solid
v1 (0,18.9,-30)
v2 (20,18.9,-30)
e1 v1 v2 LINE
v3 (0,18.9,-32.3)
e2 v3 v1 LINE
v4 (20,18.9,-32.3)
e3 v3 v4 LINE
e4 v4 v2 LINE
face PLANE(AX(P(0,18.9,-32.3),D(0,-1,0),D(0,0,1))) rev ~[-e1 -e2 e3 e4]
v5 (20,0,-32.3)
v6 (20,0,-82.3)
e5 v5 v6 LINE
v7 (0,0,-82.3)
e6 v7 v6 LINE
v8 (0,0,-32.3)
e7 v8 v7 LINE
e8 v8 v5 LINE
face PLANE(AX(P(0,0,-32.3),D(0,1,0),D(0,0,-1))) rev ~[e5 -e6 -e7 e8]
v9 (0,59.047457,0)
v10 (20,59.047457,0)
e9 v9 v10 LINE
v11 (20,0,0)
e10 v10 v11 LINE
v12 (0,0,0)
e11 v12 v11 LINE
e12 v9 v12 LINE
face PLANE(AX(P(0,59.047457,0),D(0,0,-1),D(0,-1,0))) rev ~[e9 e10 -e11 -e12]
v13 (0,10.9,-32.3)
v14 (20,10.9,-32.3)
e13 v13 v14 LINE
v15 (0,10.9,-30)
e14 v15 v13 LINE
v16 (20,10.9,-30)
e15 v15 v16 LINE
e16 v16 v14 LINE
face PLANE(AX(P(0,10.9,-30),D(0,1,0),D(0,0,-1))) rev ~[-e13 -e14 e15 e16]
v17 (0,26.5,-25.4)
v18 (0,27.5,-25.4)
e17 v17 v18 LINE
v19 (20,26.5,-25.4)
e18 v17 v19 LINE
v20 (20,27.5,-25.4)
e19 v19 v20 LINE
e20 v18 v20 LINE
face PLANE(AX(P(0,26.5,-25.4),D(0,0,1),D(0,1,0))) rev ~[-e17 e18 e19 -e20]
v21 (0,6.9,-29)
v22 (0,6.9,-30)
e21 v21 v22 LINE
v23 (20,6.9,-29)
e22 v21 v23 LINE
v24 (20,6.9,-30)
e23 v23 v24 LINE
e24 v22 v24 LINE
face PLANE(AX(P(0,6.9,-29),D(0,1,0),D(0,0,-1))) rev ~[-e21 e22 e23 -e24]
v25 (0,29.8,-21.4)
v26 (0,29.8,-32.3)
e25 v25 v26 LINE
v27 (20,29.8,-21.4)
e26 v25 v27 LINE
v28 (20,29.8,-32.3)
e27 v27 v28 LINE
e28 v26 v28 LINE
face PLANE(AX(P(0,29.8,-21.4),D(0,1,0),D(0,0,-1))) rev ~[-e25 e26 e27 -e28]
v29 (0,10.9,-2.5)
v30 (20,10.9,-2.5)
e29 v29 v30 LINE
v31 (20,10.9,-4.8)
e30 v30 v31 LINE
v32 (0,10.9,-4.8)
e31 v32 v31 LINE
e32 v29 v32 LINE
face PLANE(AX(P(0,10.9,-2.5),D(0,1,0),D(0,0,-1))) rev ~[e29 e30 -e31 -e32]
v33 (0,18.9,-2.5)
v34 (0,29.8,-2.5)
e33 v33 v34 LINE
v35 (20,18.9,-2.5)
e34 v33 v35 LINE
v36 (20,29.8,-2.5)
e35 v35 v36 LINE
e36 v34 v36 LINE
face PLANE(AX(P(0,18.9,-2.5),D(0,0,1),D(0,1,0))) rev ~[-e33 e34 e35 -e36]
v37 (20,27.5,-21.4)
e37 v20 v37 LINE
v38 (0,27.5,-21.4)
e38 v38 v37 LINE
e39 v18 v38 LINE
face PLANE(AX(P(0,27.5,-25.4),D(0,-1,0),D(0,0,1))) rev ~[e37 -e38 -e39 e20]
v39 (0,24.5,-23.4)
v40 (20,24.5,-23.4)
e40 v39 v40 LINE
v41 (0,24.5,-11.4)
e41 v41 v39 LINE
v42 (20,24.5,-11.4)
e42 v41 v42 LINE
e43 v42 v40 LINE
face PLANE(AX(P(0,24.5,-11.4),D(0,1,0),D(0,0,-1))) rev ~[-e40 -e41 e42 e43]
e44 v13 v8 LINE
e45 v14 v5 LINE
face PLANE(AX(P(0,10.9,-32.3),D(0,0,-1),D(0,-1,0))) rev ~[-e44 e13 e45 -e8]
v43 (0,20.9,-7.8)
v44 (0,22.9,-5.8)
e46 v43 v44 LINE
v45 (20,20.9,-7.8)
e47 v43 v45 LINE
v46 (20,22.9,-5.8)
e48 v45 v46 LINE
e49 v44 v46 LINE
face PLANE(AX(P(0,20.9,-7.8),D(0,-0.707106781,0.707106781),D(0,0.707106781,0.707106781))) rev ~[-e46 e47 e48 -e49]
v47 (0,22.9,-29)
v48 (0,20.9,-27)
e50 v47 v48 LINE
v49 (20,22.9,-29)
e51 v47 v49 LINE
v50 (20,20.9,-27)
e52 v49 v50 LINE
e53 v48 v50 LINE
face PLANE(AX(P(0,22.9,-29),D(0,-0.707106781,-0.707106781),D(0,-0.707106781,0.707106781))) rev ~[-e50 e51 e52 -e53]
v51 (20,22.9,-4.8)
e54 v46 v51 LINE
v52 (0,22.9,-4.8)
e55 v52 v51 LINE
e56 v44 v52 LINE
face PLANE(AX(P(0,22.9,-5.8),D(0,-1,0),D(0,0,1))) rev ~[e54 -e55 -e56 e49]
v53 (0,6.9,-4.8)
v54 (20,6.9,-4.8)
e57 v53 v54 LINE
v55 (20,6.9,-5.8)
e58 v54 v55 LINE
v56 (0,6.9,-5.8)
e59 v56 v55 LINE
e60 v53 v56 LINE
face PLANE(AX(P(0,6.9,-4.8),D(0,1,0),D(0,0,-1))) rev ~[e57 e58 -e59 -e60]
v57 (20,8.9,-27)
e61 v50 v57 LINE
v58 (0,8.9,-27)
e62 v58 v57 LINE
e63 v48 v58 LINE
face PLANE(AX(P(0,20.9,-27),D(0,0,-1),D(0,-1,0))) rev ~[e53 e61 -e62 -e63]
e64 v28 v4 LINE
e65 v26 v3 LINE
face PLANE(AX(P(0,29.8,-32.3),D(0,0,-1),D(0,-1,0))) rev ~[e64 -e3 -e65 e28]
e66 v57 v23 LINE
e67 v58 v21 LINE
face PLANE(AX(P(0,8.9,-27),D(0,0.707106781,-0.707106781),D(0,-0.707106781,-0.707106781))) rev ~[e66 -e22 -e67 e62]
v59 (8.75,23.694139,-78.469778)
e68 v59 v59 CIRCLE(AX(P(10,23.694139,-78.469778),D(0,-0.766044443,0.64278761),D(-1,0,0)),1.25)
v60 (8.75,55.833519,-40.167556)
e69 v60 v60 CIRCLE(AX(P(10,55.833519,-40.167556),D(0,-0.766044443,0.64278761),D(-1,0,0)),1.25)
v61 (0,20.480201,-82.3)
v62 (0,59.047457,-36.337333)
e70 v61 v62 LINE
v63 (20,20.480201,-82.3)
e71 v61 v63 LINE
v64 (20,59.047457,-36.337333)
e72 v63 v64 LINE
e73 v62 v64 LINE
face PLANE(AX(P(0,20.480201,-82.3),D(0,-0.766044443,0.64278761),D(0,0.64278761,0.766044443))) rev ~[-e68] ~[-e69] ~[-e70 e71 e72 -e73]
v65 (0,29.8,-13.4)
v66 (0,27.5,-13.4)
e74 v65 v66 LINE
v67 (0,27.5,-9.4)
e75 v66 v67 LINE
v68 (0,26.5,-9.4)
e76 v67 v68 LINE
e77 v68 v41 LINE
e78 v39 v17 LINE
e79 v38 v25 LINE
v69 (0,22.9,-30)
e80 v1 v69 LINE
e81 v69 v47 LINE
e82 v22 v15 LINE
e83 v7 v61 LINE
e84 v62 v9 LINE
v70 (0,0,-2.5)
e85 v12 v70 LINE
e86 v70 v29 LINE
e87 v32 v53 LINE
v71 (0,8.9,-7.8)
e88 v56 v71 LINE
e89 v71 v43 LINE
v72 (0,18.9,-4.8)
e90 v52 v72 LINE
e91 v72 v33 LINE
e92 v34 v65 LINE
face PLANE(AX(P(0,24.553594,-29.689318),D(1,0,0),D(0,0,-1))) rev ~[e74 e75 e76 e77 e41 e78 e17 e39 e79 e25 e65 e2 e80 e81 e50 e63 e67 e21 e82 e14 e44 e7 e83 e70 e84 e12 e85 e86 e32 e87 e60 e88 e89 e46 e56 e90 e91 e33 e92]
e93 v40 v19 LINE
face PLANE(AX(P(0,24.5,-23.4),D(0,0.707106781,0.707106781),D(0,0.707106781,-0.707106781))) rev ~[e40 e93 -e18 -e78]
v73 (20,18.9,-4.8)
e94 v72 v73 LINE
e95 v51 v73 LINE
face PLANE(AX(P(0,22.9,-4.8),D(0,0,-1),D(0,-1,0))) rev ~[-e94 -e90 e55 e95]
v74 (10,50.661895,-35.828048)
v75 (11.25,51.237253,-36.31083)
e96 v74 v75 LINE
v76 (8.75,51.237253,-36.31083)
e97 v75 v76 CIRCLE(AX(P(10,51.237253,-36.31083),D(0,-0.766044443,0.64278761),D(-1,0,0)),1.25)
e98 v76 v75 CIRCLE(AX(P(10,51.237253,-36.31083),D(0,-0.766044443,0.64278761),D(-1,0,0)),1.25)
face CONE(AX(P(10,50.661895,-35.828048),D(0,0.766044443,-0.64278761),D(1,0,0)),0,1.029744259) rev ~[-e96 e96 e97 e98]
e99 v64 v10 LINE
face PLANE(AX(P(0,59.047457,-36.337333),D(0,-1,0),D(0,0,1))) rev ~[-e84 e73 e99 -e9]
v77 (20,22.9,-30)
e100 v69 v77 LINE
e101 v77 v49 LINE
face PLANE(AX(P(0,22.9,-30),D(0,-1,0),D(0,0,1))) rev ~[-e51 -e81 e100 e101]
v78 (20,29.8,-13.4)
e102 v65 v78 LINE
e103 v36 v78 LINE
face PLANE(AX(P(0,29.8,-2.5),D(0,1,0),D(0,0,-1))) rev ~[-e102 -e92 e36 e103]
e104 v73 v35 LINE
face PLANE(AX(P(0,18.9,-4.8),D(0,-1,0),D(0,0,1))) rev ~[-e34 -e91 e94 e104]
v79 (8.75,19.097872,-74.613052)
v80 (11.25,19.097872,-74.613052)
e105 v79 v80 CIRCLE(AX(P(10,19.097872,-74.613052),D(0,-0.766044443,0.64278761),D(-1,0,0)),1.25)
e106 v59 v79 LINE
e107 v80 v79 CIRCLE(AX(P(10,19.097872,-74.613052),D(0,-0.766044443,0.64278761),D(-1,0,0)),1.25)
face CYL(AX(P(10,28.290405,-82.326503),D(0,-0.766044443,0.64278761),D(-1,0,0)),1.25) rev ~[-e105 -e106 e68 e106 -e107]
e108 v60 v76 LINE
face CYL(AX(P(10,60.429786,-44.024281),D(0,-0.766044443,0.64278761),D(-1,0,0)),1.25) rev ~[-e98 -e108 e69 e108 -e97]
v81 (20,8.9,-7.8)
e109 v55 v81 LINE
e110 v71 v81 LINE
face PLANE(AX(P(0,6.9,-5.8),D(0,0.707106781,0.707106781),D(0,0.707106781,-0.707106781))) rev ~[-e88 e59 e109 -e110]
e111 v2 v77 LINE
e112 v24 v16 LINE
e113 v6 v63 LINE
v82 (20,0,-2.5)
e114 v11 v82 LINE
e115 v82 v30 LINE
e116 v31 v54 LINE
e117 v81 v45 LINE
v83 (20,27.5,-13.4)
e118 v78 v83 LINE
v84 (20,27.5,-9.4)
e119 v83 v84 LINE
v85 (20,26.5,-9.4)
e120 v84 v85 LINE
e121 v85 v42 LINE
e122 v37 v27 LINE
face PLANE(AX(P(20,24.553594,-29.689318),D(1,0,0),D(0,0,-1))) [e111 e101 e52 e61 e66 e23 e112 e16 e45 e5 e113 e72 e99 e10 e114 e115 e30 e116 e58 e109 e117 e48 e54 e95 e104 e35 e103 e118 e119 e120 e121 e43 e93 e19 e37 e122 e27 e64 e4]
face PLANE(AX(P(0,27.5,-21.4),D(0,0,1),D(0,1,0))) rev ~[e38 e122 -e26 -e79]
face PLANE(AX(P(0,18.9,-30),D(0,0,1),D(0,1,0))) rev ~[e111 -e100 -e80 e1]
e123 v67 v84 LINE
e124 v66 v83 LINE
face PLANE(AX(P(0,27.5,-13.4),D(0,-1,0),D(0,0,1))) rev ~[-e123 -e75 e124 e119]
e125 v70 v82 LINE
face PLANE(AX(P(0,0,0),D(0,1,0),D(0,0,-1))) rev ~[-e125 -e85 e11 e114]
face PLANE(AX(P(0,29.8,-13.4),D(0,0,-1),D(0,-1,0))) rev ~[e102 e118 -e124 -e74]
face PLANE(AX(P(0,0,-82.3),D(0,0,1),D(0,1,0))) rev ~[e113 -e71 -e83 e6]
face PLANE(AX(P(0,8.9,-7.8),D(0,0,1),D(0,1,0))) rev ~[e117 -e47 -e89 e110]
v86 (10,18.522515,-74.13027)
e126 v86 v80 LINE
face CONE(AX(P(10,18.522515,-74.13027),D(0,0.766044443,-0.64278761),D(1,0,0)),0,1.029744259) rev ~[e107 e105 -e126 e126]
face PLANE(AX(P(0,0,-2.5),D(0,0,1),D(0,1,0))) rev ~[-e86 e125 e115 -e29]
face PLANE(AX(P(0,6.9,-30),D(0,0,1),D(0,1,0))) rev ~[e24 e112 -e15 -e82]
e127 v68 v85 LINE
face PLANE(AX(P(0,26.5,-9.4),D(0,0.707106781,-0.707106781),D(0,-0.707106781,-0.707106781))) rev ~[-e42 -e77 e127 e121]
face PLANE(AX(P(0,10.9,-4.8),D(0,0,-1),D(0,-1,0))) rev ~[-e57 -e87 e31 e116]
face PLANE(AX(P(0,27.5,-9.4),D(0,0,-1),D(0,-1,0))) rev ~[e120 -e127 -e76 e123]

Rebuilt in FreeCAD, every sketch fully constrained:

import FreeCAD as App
import Part
import Sketcher
Q = App.Units.Quantity

doc = App.newDocument("Part")
body = doc.addObject("PartDesign::Body", "Body")

# Sketch on YZ plane
sketch1 = body.newObject("Sketcher::SketchObject", "Sketch")
sketch1.AttachmentSupport = (doc.getObject("YZ_Plane"), [""])
sketch1.MapMode = "FlatFace"
sketch1.addGeometry([
    Part.LineSegment(App.Vector(18.9, -4.8, 0), App.Vector(18.9, -2.5, 0)),  # 0
    Part.LineSegment(App.Vector(18.9, -2.5, 0), App.Vector(29.8, -2.5, 0)),  # 1
    Part.LineSegment(App.Vector(29.8, -2.5, 0), App.Vector(29.8, -13.4, 0)),  # 2
    Part.LineSegment(App.Vector(29.8, -13.4, 0), App.Vector(27.5, -13.4, 0)),  # 3
    Part.LineSegment(App.Vector(27.5, -13.4, 0), App.Vector(27.5, -9.4, 0)),  # 4
    Part.LineSegment(App.Vector(27.5, -9.4, 0), App.Vector(26.5, -9.4, 0)),  # 5
    Part.LineSegment(App.Vector(26.5, -9.4, 0), App.Vector(24.5, -11.4, 0)),  # 6
    Part.LineSegment(App.Vector(24.5, -11.4, 0), App.Vector(24.5, -23.4, 0)),  # 7
    Part.LineSegment(App.Vector(24.5, -23.4, 0), App.Vector(26.5, -25.4, 0)),  # 8
    Part.LineSegment(App.Vector(26.5, -25.4, 0), App.Vector(27.5, -25.4, 0)),  # 9
    Part.LineSegment(App.Vector(27.5, -25.4, 0), App.Vector(27.5, -21.4, 0)),  # 10
    Part.LineSegment(App.Vector(27.5, -21.4, 0), App.Vector(29.8, -21.4, 0)),  # 11
    Part.LineSegment(App.Vector(29.8, -21.4, 0), App.Vector(29.8, -32.3, 0)),  # 12
    Part.LineSegment(App.Vector(29.8, -32.3, 0), App.Vector(18.9, -32.3, 0)),  # 13
    Part.LineSegment(App.Vector(18.9, -32.3, 0), App.Vector(18.9, -30, 0)),  # 14
    Part.LineSegment(App.Vector(18.9, -30, 0), App.Vector(22.9, -30, 0)),  # 15
    Part.LineSegment(App.Vector(22.9, -30, 0), App.Vector(22.9, -29, 0)),  # 16
    Part.LineSegment(App.Vector(22.9, -29, 0), App.Vector(20.9, -27, 0)),  # 17
    Part.LineSegment(App.Vector(20.9, -27, 0), App.Vector(8.9, -27, 0)),  # 18
    Part.LineSegment(App.Vector(8.9, -27, 0), App.Vector(6.9, -29, 0)),  # 19
    Part.LineSegment(App.Vector(6.9, -29, 0), App.Vector(6.9, -30, 0)),  # 20
    Part.LineSegment(App.Vector(6.9, -30, 0), App.Vector(10.9, -30, 0)),  # 21
    Part.LineSegment(App.Vector(10.9, -30, 0), App.Vector(10.9, -32.3, 0)),  # 22
    Part.LineSegment(App.Vector(10.9, -32.3, 0), App.Vector(0, -32.3, 0)),  # 23
    Part.LineSegment(App.Vector(0, -32.3, 0), App.Vector(0, -82.3, 0)),  # 24
    Part.LineSegment(App.Vector(0, -82.3, 0), App.Vector(20.5, -82.3, 0)),  # 25
    Part.LineSegment(App.Vector(20.5, -82.3, 0), App.Vector(59, -36.3, 0)),  # 26
    Part.LineSegment(App.Vector(59, -36.3, 0), App.Vector(59, 0, 0)),  # 27
    Part.LineSegment(App.Vector(59, 0, 0), App.Vector(0, 0, 0)),  # 28
    Part.LineSegment(App.Vector(0, 0, 0), App.Vector(0, -2.5, 0)),  # 29
    Part.LineSegment(App.Vector(0, -2.5, 0), App.Vector(10.9, -2.5, 0)),  # 30
    Part.LineSegment(App.Vector(10.9, -2.5, 0), App.Vector(10.9, -4.8, 0)),  # 31
    Part.LineSegment(App.Vector(10.9, -4.8, 0), App.Vector(6.9, -4.8, 0)),  # 32
    Part.LineSegment(App.Vector(6.9, -4.8, 0), App.Vector(6.9, -5.8, 0)),  # 33
    Part.LineSegment(App.Vector(6.9, -5.8, 0), App.Vector(8.9, -7.8, 0)),  # 34
    Part.LineSegment(App.Vector(8.9, -7.8, 0), App.Vector(20.9, -7.8, 0)),  # 35
    Part.LineSegment(App.Vector(20.9, -7.8, 0), App.Vector(22.9, -5.8, 0)),  # 36
    Part.LineSegment(App.Vector(22.9, -5.8, 0), App.Vector(22.9, -4.8, 0)),  # 37
    Part.LineSegment(App.Vector(22.9, -4.8, 0), App.Vector(18.9, -4.8, 0)),  # 38
], False)
sketch1.addConstraint([
    Sketcher.Constraint("Coincident", 0, 2, 1, 1),
    Sketcher.Constraint("Coincident", 1, 2, 2, 1),
    Sketcher.Constraint("Coincident", 2, 2, 3, 1),
    Sketcher.Constraint("Coincident", 3, 2, 4, 1),
    Sketcher.Constraint("Coincident", 4, 2, 5, 1),
    Sketcher.Constraint("Coincident", 5, 2, 6, 1),
    Sketcher.Constraint("Coincident", 6, 2, 7, 1),
    Sketcher.Constraint("Coincident", 7, 2, 8, 1),
    Sketcher.Constraint("Coincident", 8, 2, 9, 1),
    Sketcher.Constraint("Coincident", 9, 2, 10, 1),
    Sketcher.Constraint("Coincident", 10, 2, 11, 1),
    Sketcher.Constraint("Coincident", 11, 2, 12, 1),
    Sketcher.Constraint("Coincident", 12, 2, 13, 1),
    Sketcher.Constraint("Coincident", 13, 2, 14, 1),
    Sketcher.Constraint("Coincident", 14, 2, 15, 1),
    Sketcher.Constraint("Coincident", 15, 2, 16, 1),
    Sketcher.Constraint("Coincident", 16, 2, 17, 1),
    Sketcher.Constraint("Coincident", 17, 2, 18, 1),
    Sketcher.Constraint("Coincident", 18, 2, 19, 1),
    Sketcher.Constraint("Coincident", 19, 2, 20, 1),
    Sketcher.Constraint("Coincident", 20, 2, 21, 1),
    Sketcher.Constraint("Coincident", 21, 2, 22, 1),
    Sketcher.Constraint("Coincident", 22, 2, 23, 1),
    Sketcher.Constraint("Coincident", 23, 2, 24, 1),
    Sketcher.Constraint("Coincident", 24, 2, 25, 1),
    Sketcher.Constraint("Coincident", 25, 2, 26, 1),
    Sketcher.Constraint("Coincident", 26, 2, 27, 1),
    Sketcher.Constraint("Coincident", 27, 2, 28, 1),
    Sketcher.Constraint("Coincident", 28, 2, 29, 1),
    Sketcher.Constraint("Coincident", 29, 2, 30, 1),
    Sketcher.Constraint("Coincident", 30, 2, 31, 1),
    Sketcher.Constraint("Coincident", 31, 2, 32, 1),
    Sketcher.Constraint("Coincident", 32, 2, 33, 1),
    Sketcher.Constraint("Coincident", 33, 2, 34, 1),
    Sketcher.Constraint("Coincident", 34, 2, 35, 1),
    Sketcher.Constraint("Coincident", 35, 2, 36, 1),
    Sketcher.Constraint("Coincident", 36, 2, 37, 1),
    Sketcher.Constraint("Coincident", 37, 2, 38, 1),
    Sketcher.Constraint("Coincident", 38, 2, 0, 1),
    Sketcher.Constraint("Vertical", 0),
    Sketcher.Constraint("Horizontal", 1),
    Sketcher.Constraint("Vertical", 2),
    Sketcher.Constraint("Horizontal", 3),
    Sketcher.Constraint("Vertical", 4),
    Sketcher.Constraint("Horizontal", 5),
    Sketcher.Constraint("Vertical", 7),
    Sketcher.Constraint("Horizontal", 9),
    Sketcher.Constraint("Vertical", 10),
    Sketcher.Constraint("Horizontal", 11),
    Sketcher.Constraint("Vertical", 12),
    Sketcher.Constraint("Horizontal", 13),
    Sketcher.Constraint("Vertical", 14),
    Sketcher.Constraint("Horizontal", 15),
    Sketcher.Constraint("Vertical", 16),
    Sketcher.Constraint("Horizontal", 18),
    Sketcher.Constraint("Vertical", 20),
    Sketcher.Constraint("Horizontal", 21),
    Sketcher.Constraint("Vertical", 22),
    Sketcher.Constraint("Horizontal", 23),
    Sketcher.Constraint("Vertical", 24),
    Sketcher.Constraint("Horizontal", 25),
    Sketcher.Constraint("Vertical", 27),
    Sketcher.Constraint("Horizontal", 28),
    Sketcher.Constraint("Vertical", 29),
    Sketcher.Constraint("Horizontal", 30),
    Sketcher.Constraint("Vertical", 31),
    Sketcher.Constraint("Horizontal", 32),
    Sketcher.Constraint("Vertical", 33),
    Sketcher.Constraint("Horizontal", 35),
    Sketcher.Constraint("Vertical", 37),
    Sketcher.Constraint("Horizontal", 38),
    Sketcher.Constraint("Coincident", 28, 2, -1, 1),
    Sketcher.Constraint("PointOnObject", 23, 2, -2),
    Sketcher.Constraint("Perpendicular", 6, 8),
    Sketcher.Constraint("Parallel", 8, 17),
    Sketcher.Constraint("Perpendicular", 17, 19),
    Sketcher.Constraint("Perpendicular", 19, 34),
    Sketcher.Constraint("Perpendicular", 34, 36),
    Sketcher.Constraint("Horizontal", 16, 2, 19, 2),
    Sketcher.Constraint("Horizontal", 15, 2, 20, 2),
    Sketcher.Constraint("Horizontal", 13, 2, 22, 2),
    Sketcher.Constraint("Horizontal", 1, 2, 29, 2),
    Sketcher.Constraint("Horizontal", 33, 2, 36, 2),
    Sketcher.Constraint("Horizontal", 32, 2, 37, 2),
    Sketcher.Constraint("Vertical", 5, 2, 8, 2),
    Sketcher.Constraint("Vertical", 4, 2, 9, 2),
    Sketcher.Constraint("Vertical", 2, 2, 11, 2),
    Sketcher.Constraint("Vertical", 0, 2, 13, 2),
    Sketcher.Constraint("Vertical", 22, 2, 30, 2),
    Sketcher.Constraint("Vertical", 20, 2, 32, 2),
    Sketcher.Constraint("Vertical", 18, 2, 34, 2),
    Sketcher.Constraint("Vertical", 17, 2, 35, 2),
    Sketcher.Constraint("Vertical", 16, 2, 36, 2),
    Sketcher.Constraint("Equal", 15, 21),
    Sketcher.Constraint("Equal", 13, 23),
    Sketcher.Constraint("Equal", 11, 0),
    Sketcher.Constraint("Equal", 30, 2),
    Sketcher.Constraint("Equal", 38, 4),
    Sketcher.Constraint("Equal", 35, 7),
    Sketcher.Constraint("Equal", 4, 10),
    Sketcher.Constraint("Equal", 2, 12),
    Sketcher.Constraint("Equal", 0, 14),
    Sketcher.Constraint("Equal", 9, 16),
    Sketcher.Constraint("Equal", 20, 33),
    Sketcher.Constraint("Equal", 8, 17),
    Sketcher.Constraint("DistanceX", 5, 2, 5, 1, 1.0),
    Sketcher.Constraint("DistanceX", 15, 1, 15, 2, 4.0),
    Sketcher.Constraint("DistanceX", 18, 2, 18, 1, 12.0),
    Sketcher.Constraint("DistanceY", 24, 2, 24, 1, 50.0),
    Sketcher.Constraint("Angle", 26, Q("50 deg")),
    Sketcher.Constraint("Distance", 26, 60.0),
    Sketcher.Constraint("DistanceX", 1, 1, 1, 2, 10.9),
    Sketcher.Constraint("DistanceX", 3, 2, 3, 1, 2.3),
    Sketcher.Constraint("DistanceY", 29, 2, 29, 1, 2.5),
    Sketcher.Constraint("DistanceY", 14, 2, -1, 1, 30.0),
    Sketcher.Constraint("DistanceX", 25, 1, 25, 2, 20.480201),
])
pad1 = body.newObject("PartDesign::Pad", "Pad")
pad1.Profile = sketch1
pad1.Length = 20

# Sketch on an angled plane
sketch2 = body.newObject("Sketcher::SketchObject", "Sketch001")
sketch2.Placement = App.Placement(App.Vector(0, 52.543114, -44.088908), App.Rotation(App.Vector(1, 0, 0), App.Vector(0, -0.64278761, -0.766044443), App.Vector(0, 0.766044443, -0.64278761), "ZXY"))
sketch2.addGeometry([
    Part.Circle(App.Vector(10, -5.1, 0), App.Vector(0, 0, 1), 1.2),
    Part.Circle(App.Vector(10, 44.9, 0), App.Vector(0, 0, 1), 1.2),
], False)
sketch2.addConstraint([
    Sketcher.Constraint("Equal", 0, 1),
    Sketcher.Constraint("Vertical", 0, 3, 1, 3),
    Sketcher.Constraint("Diameter", 0, 2.5),
    Sketcher.Constraint("DistanceX", -1, 1, 0, 3, 10.0),
    Sketcher.Constraint("DistanceY", 0, 3, 1, 3, 50.0),
    Sketcher.Constraint("DistanceY", 0, 3, -1, 1, 5.118962),
])
doc.recompute()
hole = body.newObject("PartDesign::Hole", "Hole")
hole.Profile = sketch2
hole.ThreadType = "None"
hole.Diameter = 2.5
hole.DepthType = "Dimension"
hole.Depth = 6
hole.DrillPoint = "Angled"
hole.DrillPointAngle = 118

doc.recompute()
